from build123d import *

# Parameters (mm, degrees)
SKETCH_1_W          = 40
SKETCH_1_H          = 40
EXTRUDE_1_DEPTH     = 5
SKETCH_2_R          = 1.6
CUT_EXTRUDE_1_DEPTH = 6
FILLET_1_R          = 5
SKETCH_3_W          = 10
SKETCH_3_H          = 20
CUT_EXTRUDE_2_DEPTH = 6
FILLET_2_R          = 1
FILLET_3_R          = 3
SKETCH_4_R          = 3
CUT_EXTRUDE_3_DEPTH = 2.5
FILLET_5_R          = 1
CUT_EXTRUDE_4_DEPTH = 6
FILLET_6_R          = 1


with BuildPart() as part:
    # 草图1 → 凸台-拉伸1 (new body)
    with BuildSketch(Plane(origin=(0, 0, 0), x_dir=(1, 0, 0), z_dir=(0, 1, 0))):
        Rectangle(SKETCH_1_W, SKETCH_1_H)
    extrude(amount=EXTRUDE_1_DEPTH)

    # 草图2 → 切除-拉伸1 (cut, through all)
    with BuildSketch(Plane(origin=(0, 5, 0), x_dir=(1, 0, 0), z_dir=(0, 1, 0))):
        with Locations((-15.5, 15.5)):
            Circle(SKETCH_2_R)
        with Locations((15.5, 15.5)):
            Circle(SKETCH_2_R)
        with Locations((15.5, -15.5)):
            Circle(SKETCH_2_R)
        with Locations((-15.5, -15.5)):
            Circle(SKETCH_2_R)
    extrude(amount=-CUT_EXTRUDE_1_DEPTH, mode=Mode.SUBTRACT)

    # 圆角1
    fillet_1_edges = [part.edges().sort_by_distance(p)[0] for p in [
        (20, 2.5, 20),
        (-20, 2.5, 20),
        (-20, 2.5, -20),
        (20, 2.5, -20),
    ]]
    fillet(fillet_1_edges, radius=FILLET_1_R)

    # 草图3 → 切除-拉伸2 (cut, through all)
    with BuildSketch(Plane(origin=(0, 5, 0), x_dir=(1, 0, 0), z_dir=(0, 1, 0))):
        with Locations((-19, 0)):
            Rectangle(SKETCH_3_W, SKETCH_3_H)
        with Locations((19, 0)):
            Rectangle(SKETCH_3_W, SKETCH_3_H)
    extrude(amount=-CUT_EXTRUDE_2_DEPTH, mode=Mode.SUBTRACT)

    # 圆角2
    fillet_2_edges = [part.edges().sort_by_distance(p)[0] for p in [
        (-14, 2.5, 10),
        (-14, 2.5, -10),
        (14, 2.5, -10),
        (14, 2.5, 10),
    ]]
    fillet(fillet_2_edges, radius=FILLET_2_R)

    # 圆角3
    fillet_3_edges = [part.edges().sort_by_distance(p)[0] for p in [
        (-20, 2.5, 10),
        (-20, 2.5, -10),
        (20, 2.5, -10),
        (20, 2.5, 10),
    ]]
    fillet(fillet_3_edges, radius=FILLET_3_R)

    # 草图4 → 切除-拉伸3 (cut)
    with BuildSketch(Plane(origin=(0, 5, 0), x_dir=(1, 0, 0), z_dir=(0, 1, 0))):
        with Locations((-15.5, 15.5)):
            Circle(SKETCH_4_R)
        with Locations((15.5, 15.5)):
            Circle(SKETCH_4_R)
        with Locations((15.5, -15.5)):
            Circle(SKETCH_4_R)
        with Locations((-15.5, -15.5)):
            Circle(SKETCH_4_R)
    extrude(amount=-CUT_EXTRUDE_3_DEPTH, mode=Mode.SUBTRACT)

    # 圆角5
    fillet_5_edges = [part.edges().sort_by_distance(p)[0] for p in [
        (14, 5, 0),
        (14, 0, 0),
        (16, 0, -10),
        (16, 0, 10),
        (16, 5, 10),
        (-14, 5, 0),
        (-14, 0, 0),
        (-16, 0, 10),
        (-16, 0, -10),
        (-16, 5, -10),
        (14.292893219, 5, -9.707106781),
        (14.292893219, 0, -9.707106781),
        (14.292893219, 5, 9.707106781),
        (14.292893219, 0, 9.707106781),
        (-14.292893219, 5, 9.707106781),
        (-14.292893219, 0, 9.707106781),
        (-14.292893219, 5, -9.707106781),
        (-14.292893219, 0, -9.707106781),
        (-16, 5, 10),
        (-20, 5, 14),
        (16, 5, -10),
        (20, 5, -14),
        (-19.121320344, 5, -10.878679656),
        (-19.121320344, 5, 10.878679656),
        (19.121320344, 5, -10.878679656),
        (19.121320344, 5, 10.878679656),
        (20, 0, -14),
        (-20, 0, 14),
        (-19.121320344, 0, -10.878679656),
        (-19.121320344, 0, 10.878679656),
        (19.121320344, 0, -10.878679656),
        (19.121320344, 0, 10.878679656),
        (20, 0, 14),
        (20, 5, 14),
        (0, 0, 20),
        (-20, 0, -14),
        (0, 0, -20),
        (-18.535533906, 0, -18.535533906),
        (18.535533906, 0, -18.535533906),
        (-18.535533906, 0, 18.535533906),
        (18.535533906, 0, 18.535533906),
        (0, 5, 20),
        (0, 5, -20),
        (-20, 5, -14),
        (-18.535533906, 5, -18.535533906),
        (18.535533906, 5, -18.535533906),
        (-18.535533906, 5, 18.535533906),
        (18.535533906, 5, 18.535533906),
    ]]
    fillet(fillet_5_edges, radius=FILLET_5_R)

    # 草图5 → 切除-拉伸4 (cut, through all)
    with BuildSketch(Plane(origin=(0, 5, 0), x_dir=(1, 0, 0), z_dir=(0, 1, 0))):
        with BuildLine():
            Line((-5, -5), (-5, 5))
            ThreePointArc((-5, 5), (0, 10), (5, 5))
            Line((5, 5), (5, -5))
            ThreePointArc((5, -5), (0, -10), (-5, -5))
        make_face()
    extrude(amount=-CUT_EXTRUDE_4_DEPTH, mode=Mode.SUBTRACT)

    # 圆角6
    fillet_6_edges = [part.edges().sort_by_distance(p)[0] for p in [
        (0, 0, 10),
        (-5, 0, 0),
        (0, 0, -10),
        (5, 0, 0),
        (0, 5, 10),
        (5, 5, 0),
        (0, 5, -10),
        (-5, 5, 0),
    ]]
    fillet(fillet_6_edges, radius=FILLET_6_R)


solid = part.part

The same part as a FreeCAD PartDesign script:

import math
import FreeCAD as App
import Part
import Sketcher

V = App.Vector


def edges_at(feature, points):
    """Names of the edges that pass closest to the given points."""
    edges = feature.Shape.Edges
    near = lambda p: min(range(len(edges)), key=lambda i: edges[i].distToShape(Part.Vertex(*p))[0])
    return sorted({f"Edge{near(p) + 1}" for p in points})


def add_polygon(sketch, points):
    """Adds a closed chain of lines whose ends are joined by coincident constraints."""
    first, n = sketch.GeometryCount, len(points)
    for a, b in zip(points, points[1:] + points[:1]):
        sketch.addGeometry(Part.LineSegment(App.Vector(*a, 0), App.Vector(*b, 0)), False)
    for i in range(n):
        sketch.addConstraint(Sketcher.Constraint("Coincident", first + i, 2, first + (i + 1) % n, 1))

doc = App.newDocument("Part")
params = doc.addObject("Spreadsheet::Sheet", "Params")
for row, (alias, value) in enumerate([
    ("sketch1_width", "40 mm"),
    ("pad1_length", "5 mm"),
    ("sketch2_diameter", "3.2 mm"),
    ("fillet_radius", "5 mm"),
    ("sketch3_width", "10 mm"),
    ("sketch3_height", "20 mm"),
    ("fillet2_radius", "1 mm"),
    ("fillet3_radius", "3 mm"),
    ("sketch4_diameter", "6 mm"),
    ("pocket3_length", "2.5 mm"),
    ("fillet4_radius", "1 mm"),
    ("sketch5_radius", "5 mm"),
    ("sketch5_height", "10 mm"),
    ("fillet5_radius", "1 mm"),
], start=1):
    params.set(f"A{row}", alias)
    params.set(f"B{row}", "=" + value)
    params.setAlias(f"B{row}", alias)

body = doc.addObject("PartDesign::Body", "Body")

sketch1 = body.newObject("Sketcher::SketchObject", "Sketch")
sketch1.AttachmentSupport = (doc.getObject("XZ_Plane"), [""])
sketch1.MapMode = "FlatFace"
add_polygon(sketch1, [(-20, -20), (-20, 20), (20, 20), (20, -20)])
sketch1.addConstraint([
    Sketcher.Constraint("Vertical", 0),
    Sketcher.Constraint("Horizontal", 1),
    Sketcher.Constraint("Vertical", 2),
    Sketcher.Constraint("Horizontal", 3),
    Sketcher.Constraint("Symmetric", 0, 2, 2, 2, -1, 1),
    Sketcher.Constraint("Equal", 3, 0),
    Sketcher.Constraint("DistanceX", 1, 1, 1, 2, 40.0),
])
sketch1.setExpression("Constraints[10]", "Params.sketch1_width")
pad1 = body.newObject("PartDesign::Pad", "Pad")
pad1.Profile = sketch1
pad1.setExpression("Length", "Params.pad1_length")
pad1.Reversed = True

sketch2 = body.newObject("Sketcher::SketchObject", "Sketch001")
sketch2.AttachmentSupport = (doc.getObject("XZ_Plane"), [""])
sketch2.MapMode = "FlatFace"
sketch2.AttachmentOffset = App.Placement(V(0, 0, -5), App.Rotation())
sketch2.addGeometry([
    Part.Circle(V(-15.5, -15.5, 0), V(0, 0, 1), 1.6),
    Part.Circle(V(15.5, -15.5, 0), V(0, 0, 1), 1.6),
    Part.Circle(V(15.5, 15.5, 0), V(0, 0, 1), 1.6),
    Part.Circle(V(-15.5, 15.5, 0), V(0, 0, 1), 1.6),
], False)
sketch2.addConstraint([
    Sketcher.Constraint("Equal", 0, 1),
    Sketcher.Constraint("Equal", 1, 2),
    Sketcher.Constraint("Equal", 2, 3),
    Sketcher.Constraint("Symmetric", 0, 3, 2, 3, -1, 1),
    Sketcher.Constraint("Symmetric", 1, 3, 3, 3, -1, 1),
    Sketcher.Constraint("Symmetric", 0, 3, 1, 3, -2),
    Sketcher.Constraint("Diameter", 0, 3.2),
    Sketcher.Constraint("DistanceX", 0, 3, 1, 3, 31.0),
    Sketcher.Constraint("DistanceY", 1, 3, 2, 3, 31.0),
])
sketch2.setExpression("Constraints[6]", "Params.sketch2_diameter")
pocket1 = body.newObject("PartDesign::Pocket", "Pocket")
pocket1.Profile = sketch2
pocket1.Type = "ThroughAll"
pocket1.Reversed = True
doc.recompute()

fillet = body.newObject("PartDesign::Fillet", "Fillet")
fillet.Base = (pocket1, edges_at(pocket1, [
    (20, 2.5, 20),
    (-20, 2.5, 20),
    (-20, 2.5, -20),
    (20, 2.5, -20),
]))
fillet.setExpression("Radius", "Params.fillet_radius")

sketch3 = body.newObject("Sketcher::SketchObject", "Sketch002")
sketch3.AttachmentSupport = (doc.getObject("XZ_Plane"), [""])
sketch3.MapMode = "FlatFace"
sketch3.AttachmentOffset = App.Placement(V(0, 0, -5), App.Rotation())
add_polygon(sketch3, [(-24, -10), (-24, 10), (-14, 10), (-14, -10)])
add_polygon(sketch3, [(14, -10), (14, 10), (24, 10), (24, -10)])
sketch3.addConstraint([
    Sketcher.Constraint("Vertical", 0),
    Sketcher.Constraint("Horizontal", 1),
    Sketcher.Constraint("Vertical", 2),
    Sketcher.Constraint("Horizontal", 3),
    Sketcher.Constraint("Vertical", 4),
    Sketcher.Constraint("Horizontal", 5),
    Sketcher.Constraint("Vertical", 6),
    Sketcher.Constraint("Horizontal", 7),
    Sketcher.Constraint("Symmetric", 2, 2, 4, 2, -1, 1),
    Sketcher.Constraint("Symmetric", 0, 2, 6, 2, -1, 1),
    Sketcher.Constraint("Horizontal", 1, 2, 4, 2),
    Sketcher.Constraint("DistanceX", 1, 1, 1, 2, 10.0),
    Sketcher.Constraint("DistanceY", 0, 1, 0, 2, 20.0),
    Sketcher.Constraint("DistanceX", 0, 2, -1, 1, 24.0),
])
sketch3.setExpression("Constraints[19]", "Params.sketch3_width")
sketch3.setExpression("Constraints[20]", "Params.sketch3_height")
pocket2 = body.newObject("PartDesign::Pocket", "Pocket001")
pocket2.Profile = sketch3
pocket2.Type = "ThroughAll"
pocket2.Reversed = True
doc.recompute()

fillet2 = body.newObject("PartDesign::Fillet", "Fillet001")
fillet2.Base = (pocket2, edges_at(pocket2, [
    (-14, 2.5, 10),
    (-14, 2.5, -10),
    (14, 2.5, -10),
    (14, 2.5, 10),
]))
fillet2.setExpression("Radius", "Params.fillet2_radius")
doc.recompute()

fillet3 = body.newObject("PartDesign::Fillet", "Fillet002")
fillet3.Base = (fillet2, edges_at(fillet2, [
    (-20, 2.5, 10),
    (-20, 2.5, -10),
    (20, 2.5, -10),
    (20, 2.5, 10),
]))
fillet3.setExpression("Radius", "Params.fillet3_radius")

sketch4 = body.newObject("Sketcher::SketchObject", "Sketch003")
sketch4.AttachmentSupport = (doc.getObject("XZ_Plane"), [""])
sketch4.MapMode = "FlatFace"
sketch4.AttachmentOffset = App.Placement(V(0, 0, -5), App.Rotation())
sketch4.addGeometry([
    Part.Circle(V(-15.5, -15.5, 0), V(0, 0, 1), 3),
    Part.Circle(V(15.5, -15.5, 0), V(0, 0, 1), 3),
    Part.Circle(V(15.5, 15.5, 0), V(0, 0, 1), 3),
    Part.Circle(V(-15.5, 15.5, 0), V(0, 0, 1), 3),
], False)
sketch4.addConstraint([
    Sketcher.Constraint("Equal", 0, 1),
    Sketcher.Constraint("Equal", 1, 2),
    Sketcher.Constraint("Equal", 2, 3),
    Sketcher.Constraint("Symmetric", 0, 3, 2, 3, -1, 1),
    Sketcher.Constraint("Symmetric", 1, 3, 3, 3, -1, 1),
    Sketcher.Constraint("Symmetric", 0, 3, 1, 3, -2),
    Sketcher.Constraint("Diameter", 0, 6.0),
    Sketcher.Constraint("DistanceX", 0, 3, 1, 3, 31.0),
    Sketcher.Constraint("DistanceY", 1, 3, 2, 3, 31.0),
])
sketch4.setExpression("Constraints[6]", "Params.sketch4_diameter")
pocket3 = body.newObject("PartDesign::Pocket", "Pocket002")
pocket3.Profile = sketch4
pocket3.setExpression("Length", "Params.pocket3_length")
pocket3.Reversed = True
doc.recompute()

fillet4 = body.newObject("PartDesign::Fillet", "Fillet003")
fillet4.Base = (pocket3, edges_at(pocket3, [
    (14, 5, 0),
    (14, 0, 0),
    (16, 0, -10),
    (16, 0, 10),
    (16, 5, 10),
    (-14, 5, 0),
    (-14, 0, 0),
    (-16, 0, 10),
    (-16, 0, -10),
    (-16, 5, -10),
    (14.293, 5, -9.707),
    (14.293, 0, -9.707),
    (14.293, 5, 9.707),
    (14.293, 0, 9.707),
    (-14.293, 5, 9.707),
    (-14.293, 0, 9.707),
    (-14.293, 5, -9.707),
    (-14.293, 0, -9.707),
    (-16, 5, 10),
    (-20, 5, 14),
    (16, 5, -10),
    (20, 5, -14),
    (-19.121, 5, -10.879),
    (-19.121, 5, 10.879),
    (19.121, 5, -10.879),
    (19.121, 5, 10.879),
    (20, 0, -14),
    (-20, 0, 14),
    (-19.121, 0, -10.879),
    (-19.121, 0, 10.879),
    (19.121, 0, -10.879),
    (19.121, 0, 10.879),
    (20, 0, 14),
    (20, 5, 14),
    (0, 0, 20),
    (-20, 0, -14),
    (0, 0, -20),
    (-18.536, 0, -18.536),
    (18.536, 0, -18.536),
    (-18.536, 0, 18.536),
    (18.536, 0, 18.536),
    (0, 5, 20),
    (0, 5, -20),
    (-20, 5, -14),
    (-18.536, 5, -18.536),
    (18.536, 5, -18.536),
    (-18.536, 5, 18.536),
    (18.536, 5, 18.536),
]))
fillet4.setExpression("Radius", "Params.fillet4_radius")

sketch5 = body.newObject("Sketcher::SketchObject", "Sketch004")
sketch5.AttachmentSupport = (doc.getObject("XZ_Plane"), [""])
sketch5.MapMode = "FlatFace"
sketch5.AttachmentOffset = App.Placement(V(0, 0, -5), App.Rotation())
sketch5.addGeometry([
    Part.LineSegment(V(-5, -5, 0), V(-5, 5, 0)),
    Part.ArcOfCircle(Part.Circle(V(0, 5, 0), V(0, 0, 1), 5), math.radians(0), math.radians(180)),
    Part.LineSegment(V(5, 5, 0), V(5, -5, 0)),
    Part.ArcOfCircle(Part.Circle(V(0, -5, 0), V(0, 0, 1), 5), math.radians(180), math.radians(360)),
], False)
sketch5.addConstraint([
    Sketcher.Constraint("Tangent", 0, 2, 1, 2),
    Sketcher.Constraint("Tangent", 1, 1, 2, 1),
    Sketcher.Constraint("Tangent", 2, 2, 3, 2),
    Sketcher.Constraint("Tangent", 3, 1, 0, 1),
    Sketcher.Constraint("Vertical", 0),
    Sketcher.Constraint("Vertical", 2),
    Sketcher.Constraint("Symmetric", 1, 3, 3, 3, -1, 1),
    Sketcher.Constraint("Radius", 1, 5.0),
    Sketcher.Constraint("DistanceY", 0, 1, 0, 2, 10.0),
])
sketch5.setExpression("Constraints[7]", "Params.sketch5_radius")
sketch5.setExpression("Constraints[8]", "Params.sketch5_height")
pocket4 = body.newObject("PartDesign::Pocket", "Pocket003")
pocket4.Profile = sketch5
pocket4.Type = "ThroughAll"
pocket4.Reversed = True
doc.recompute()

fillet5 = body.newObject("PartDesign::Fillet", "Fillet004")
fillet5.Base = (pocket4, edges_at(pocket4, [
    (0, 0, 10),
    (-5, 0, 0),
    (0, 0, -10),
    (5, 0, 0),
    (0, 5, 10),
    (5, 5, 0),
    (0, 5, -10),
    (-5, 5, 0),
]))
fillet5.setExpression("Radius", "Params.fillet5_radius")

doc.recompute()
